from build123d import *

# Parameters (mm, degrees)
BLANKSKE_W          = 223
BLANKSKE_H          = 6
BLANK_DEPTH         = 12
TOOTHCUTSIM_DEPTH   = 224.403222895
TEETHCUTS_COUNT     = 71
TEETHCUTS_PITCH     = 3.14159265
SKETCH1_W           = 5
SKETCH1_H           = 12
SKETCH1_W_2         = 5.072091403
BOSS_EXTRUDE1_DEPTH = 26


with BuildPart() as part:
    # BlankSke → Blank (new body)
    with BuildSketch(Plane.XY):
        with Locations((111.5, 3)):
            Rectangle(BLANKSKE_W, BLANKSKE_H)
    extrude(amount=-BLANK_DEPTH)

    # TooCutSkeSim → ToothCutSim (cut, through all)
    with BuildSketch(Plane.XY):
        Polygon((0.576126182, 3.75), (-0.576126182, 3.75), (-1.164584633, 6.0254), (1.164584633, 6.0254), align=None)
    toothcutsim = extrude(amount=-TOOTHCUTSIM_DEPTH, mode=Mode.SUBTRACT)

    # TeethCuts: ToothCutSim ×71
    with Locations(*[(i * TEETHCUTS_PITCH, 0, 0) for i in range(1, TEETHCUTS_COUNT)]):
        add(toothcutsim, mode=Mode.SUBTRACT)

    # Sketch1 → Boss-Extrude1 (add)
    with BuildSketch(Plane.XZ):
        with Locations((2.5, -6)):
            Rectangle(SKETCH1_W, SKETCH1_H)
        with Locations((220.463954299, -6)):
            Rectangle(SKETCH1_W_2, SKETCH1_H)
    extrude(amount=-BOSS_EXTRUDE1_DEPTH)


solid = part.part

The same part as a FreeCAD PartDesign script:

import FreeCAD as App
import Part
import Sketcher

V = App.Vector
Q = App.Units.Quantity


def add_polygon(sketch, points):
    """Adds a closed chain of lines whose ends are joined by coincident constraints."""
    first, n = sketch.GeometryCount, len(points)
    for a, b in zip(points, points[1:] + points[:1]):
        sketch.addGeometry(Part.LineSegment(App.Vector(*a, 0), App.Vector(*b, 0)), False)
    for i in range(n):
        sketch.addConstraint(Sketcher.Constraint("Coincident", first + i, 2, first + (i + 1) % n, 1))

doc = App.newDocument("Part")
params = doc.addObject("Spreadsheet::Sheet", "Params")
for row, (alias, value) in enumerate([
    ("sketch1_width", "223 mm"),
    ("sketch1_height", "6 mm"),
    ("pad1_length", "12 mm"),
    ("linearpattern_pitch", "3.141593 mm"),
    ("sketch3_width", "5 mm"),
    ("sketch3_height", "12 mm"),
    ("pad2_length", "26 mm"),
], start=1):
    params.set(f"A{row}", alias)
    params.set(f"B{row}", "=" + value)
    params.setAlias(f"B{row}", alias)

body = doc.addObject("PartDesign::Body", "Body")

# Sketch on XY plane
sketch1 = body.newObject("Sketcher::SketchObject", "Sketch")
sketch1.AttachmentSupport = (doc.getObject("XY_Plane"), [""])
sketch1.MapMode = "FlatFace"
add_polygon(sketch1, [(0, 6), (0, 0), (223, 0), (223, 6)])  # lines 0-3
sketch1.addConstraint([
    Sketcher.Constraint("Vertical", 0),
    Sketcher.Constraint("Horizontal", 1),
    Sketcher.Constraint("Vertical", 2),
    Sketcher.Constraint("Horizontal", 3),
    Sketcher.Constraint("Coincident", 0, 2, -1, 1),
    Sketcher.Constraint("DistanceX", 1, 1, 1, 2, 223.0),
    Sketcher.Constraint("DistanceY", 0, 2, 0, 1, 6.0),
])
sketch1.setExpression("Constraints[9]", "Params.sketch1_width")
sketch1.setExpression("Constraints[10]", "Params.sketch1_height")
pad1 = body.newObject("PartDesign::Pad", "Pad")
pad1.Profile = sketch1
pad1.setExpression("Length", "Params.pad1_length")
pad1.Reversed = True

# Sketch on XY plane
sketch2 = body.newObject("Sketcher::SketchObject", "Sketch001")
sketch2.AttachmentSupport = (doc.getObject("XY_Plane"), [""])
sketch2.MapMode = "FlatFace"
add_polygon(sketch2, [(-0.6, 3.8), (0.6, 3.8), (1.2, 6), (-1.2, 6)])  # lines 0-3
sketch2.addConstraint([
    Sketcher.Constraint("Horizontal", 0),
    Sketcher.Constraint("Horizontal", 2),
    Sketcher.Constraint("Equal", 1, 3),
    Sketcher.Constraint("Angle", 1, Q("75.5 deg")),
    Sketcher.Constraint("DistanceY", -1, 1, 0, 2, 3.75),
    Sketcher.Constraint("DistanceX", 2, 2, 2, 1, 2.329169),
    Sketcher.Constraint("DistanceY", -1, 1, 1, 2, 6.0254),
    Sketcher.Constraint("DistanceX", -1, 1, 0, 2, 0.576126),
])
pocket1 = body.newObject("PartDesign::Pocket", "Pocket")
pocket1.Profile = sketch2
pocket1.Type = "ThroughAll"
doc.recompute()

linearpattern = body.newObject("PartDesign::LinearPattern", "LinearPattern")
linearpattern.Originals = [pocket1]
linearpattern.Direction = (doc.getObject("X_Axis"), [""])
linearpattern.Mode = "offset"
linearpattern.setExpression("Offset", "Params.linearpattern_pitch")
linearpattern.Occurrences = 71
body.Tip = linearpattern

# Sketch on XZ plane
sketch3 = body.newObject("Sketcher::SketchObject", "Sketch002")
sketch3.AttachmentSupport = (doc.getObject("XZ_Plane"), [""])
sketch3.MapMode = "FlatFace"
add_polygon(sketch3, [(0, 0), (0, -12), (5, -12), (5, 0)])  # lines 0-3
add_polygon(sketch3, [(218, 0), (218, -12), (223, -12), (223, 0)])  # lines 4-7
sketch3.addConstraint([
    Sketcher.Constraint("Vertical", 0),
    Sketcher.Constraint("Horizontal", 1),
    Sketcher.Constraint("Vertical", 2),
    Sketcher.Constraint("Horizontal", 3),
    Sketcher.Constraint("Vertical", 4),
    Sketcher.Constraint("Horizontal", 5),
    Sketcher.Constraint("Vertical", 6),
    Sketcher.Constraint("Horizontal", 7),
    Sketcher.Constraint("Coincident", 3, 2, -1, 1),
    Sketcher.Constraint("PointOnObject", 6, 2, -1),
    Sketcher.Constraint("Horizontal", 1, 2, 4, 2),
    Sketcher.Constraint("DistanceX", 1, 1, 1, 2, 5.0),
    Sketcher.Constraint("DistanceY", 0, 2, 0, 1, 12.0),
    Sketcher.Constraint("DistanceX", -1, 1, 5, 2, 223.0),
    Sketcher.Constraint("DistanceX", 5, 1, 5, 2, 5.072091),
])
sketch3.setExpression("Constraints[19]", "Params.sketch3_width")
sketch3.setExpression("Constraints[20]", "Params.sketch3_height")
pad2 = body.newObject("PartDesign::Pad", "Pad001")
pad2.Profile = sketch3
pad2.setExpression("Length", "Params.pad2_length")
pad2.Reversed = True

doc.recompute()
